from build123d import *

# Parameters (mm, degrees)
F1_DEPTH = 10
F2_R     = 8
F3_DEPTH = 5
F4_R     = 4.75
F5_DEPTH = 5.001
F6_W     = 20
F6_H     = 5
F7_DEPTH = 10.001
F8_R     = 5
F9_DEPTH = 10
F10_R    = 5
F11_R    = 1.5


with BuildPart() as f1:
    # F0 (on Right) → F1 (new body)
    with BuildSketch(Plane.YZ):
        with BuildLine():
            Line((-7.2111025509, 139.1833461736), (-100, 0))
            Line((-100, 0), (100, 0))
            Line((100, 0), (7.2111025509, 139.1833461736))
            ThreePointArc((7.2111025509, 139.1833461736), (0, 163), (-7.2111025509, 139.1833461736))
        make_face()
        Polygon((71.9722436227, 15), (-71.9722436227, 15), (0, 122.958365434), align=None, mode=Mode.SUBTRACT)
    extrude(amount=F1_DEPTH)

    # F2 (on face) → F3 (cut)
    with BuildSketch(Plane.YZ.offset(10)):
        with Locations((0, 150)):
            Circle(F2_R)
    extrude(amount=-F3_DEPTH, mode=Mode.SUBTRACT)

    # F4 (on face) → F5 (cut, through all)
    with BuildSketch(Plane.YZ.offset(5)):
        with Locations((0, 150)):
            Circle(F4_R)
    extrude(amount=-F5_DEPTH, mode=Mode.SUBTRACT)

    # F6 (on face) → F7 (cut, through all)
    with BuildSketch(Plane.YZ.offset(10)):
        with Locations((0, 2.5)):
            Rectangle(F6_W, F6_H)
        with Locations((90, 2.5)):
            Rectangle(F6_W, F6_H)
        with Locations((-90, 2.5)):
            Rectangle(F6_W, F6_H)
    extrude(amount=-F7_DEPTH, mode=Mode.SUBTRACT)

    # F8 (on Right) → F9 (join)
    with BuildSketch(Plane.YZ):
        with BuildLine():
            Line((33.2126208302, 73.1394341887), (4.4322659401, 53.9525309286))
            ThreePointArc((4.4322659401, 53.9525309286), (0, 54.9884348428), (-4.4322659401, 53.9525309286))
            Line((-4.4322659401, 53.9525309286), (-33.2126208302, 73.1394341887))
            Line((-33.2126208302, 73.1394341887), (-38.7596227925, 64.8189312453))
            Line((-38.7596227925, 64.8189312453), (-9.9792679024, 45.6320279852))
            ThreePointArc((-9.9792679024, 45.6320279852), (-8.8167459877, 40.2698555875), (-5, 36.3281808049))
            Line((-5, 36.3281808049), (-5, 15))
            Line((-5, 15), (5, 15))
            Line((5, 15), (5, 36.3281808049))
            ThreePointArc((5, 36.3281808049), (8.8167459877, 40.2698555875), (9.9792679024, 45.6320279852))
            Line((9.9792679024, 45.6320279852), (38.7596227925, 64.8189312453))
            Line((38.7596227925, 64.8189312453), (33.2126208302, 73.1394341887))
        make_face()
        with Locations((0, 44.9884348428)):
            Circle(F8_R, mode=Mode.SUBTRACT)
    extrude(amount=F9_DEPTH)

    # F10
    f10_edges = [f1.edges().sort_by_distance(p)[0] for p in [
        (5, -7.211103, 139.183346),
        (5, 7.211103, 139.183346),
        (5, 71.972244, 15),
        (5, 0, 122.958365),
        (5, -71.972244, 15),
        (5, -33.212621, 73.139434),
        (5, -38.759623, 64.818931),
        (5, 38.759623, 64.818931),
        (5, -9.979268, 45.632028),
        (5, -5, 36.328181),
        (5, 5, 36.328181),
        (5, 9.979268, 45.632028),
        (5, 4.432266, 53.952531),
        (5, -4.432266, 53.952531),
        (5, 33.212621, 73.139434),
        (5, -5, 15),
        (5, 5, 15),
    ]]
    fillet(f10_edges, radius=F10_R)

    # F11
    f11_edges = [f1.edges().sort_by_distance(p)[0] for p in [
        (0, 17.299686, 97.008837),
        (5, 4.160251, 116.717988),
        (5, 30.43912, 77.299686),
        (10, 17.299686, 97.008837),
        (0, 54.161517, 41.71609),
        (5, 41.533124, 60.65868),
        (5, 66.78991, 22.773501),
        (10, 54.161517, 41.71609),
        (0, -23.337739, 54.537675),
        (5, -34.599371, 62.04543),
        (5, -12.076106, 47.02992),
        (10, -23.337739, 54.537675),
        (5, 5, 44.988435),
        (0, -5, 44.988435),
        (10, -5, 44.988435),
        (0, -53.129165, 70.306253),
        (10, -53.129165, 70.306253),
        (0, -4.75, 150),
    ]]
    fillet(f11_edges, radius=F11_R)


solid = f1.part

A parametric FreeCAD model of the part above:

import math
import FreeCAD as App
import Part
import Sketcher

V = App.Vector
Q = App.Units.Quantity


def edges_at(feature, points):
    """Names of the edges that pass closest to the given points."""
    edges = feature.Shape.Edges
    near = lambda p: min(range(len(edges)), key=lambda i: edges[i].distToShape(Part.Vertex(*p))[0])
    return sorted({f"Edge{near(p) + 1}" for p in points})

doc = App.newDocument("Part")
params = doc.addObject("Spreadsheet::Sheet", "Params")
for row, (alias, value) in enumerate([
    ("sketch1_radius", "13 mm"),
    ("sketch1_width", "200 mm"),
    ("pad1_length", "10 mm"),
    ("sketch2_diameter", "16 mm"),
    ("pocket1_length", "5 mm"),
    ("sketch3_diameter", "9.5 mm"),
    ("sketch4_width", "20 mm"),
    ("sketch4_height", "5 mm"),
    ("sketch5_diameter", "10 mm"),
    ("sketch5_radius", "10 mm"),
    ("sketch5_width", "10 mm"),
    ("sketch5_length", "10 mm"),
    ("pad2_length", "10 mm"),
    ("fillet_radius", "5 mm"),
    ("fillet2_radius", "1.5 mm"),
], start=1):
    params.set(f"A{row}", alias)
    params.set(f"B{row}", "=" + value)
    params.setAlias(f"B{row}", alias)

body = doc.addObject("PartDesign::Body", "Body")

# Sketch on YZ plane
sketch1 = body.newObject("Sketcher::SketchObject", "Sketch")
sketch1.AttachmentSupport = (doc.getObject("YZ_Plane"), [""])
sketch1.MapMode = "FlatFace"
sketch1.addGeometry([
    Part.LineSegment(V(-7, 139, 0), V(-100, 0, 0)),  # 0
    Part.LineSegment(V(-100, 0, 0), V(100, 0, 0)),  # 1
    Part.LineSegment(V(100, 0, 0), V(7, 139, 0)),  # 2
    Part.ArcOfCircle(Part.Circle(V(0, 150, 0), V(0, 0, 1), 13), math.radians(-56), math.radians(236)),  # 3
    Part.LineSegment(V(0, 123, 0), V(72, 15, 0)),  # 4
    Part.LineSegment(V(72, 15, 0), V(-72, 15, 0)),  # 5
    Part.LineSegment(V(-72, 15, 0), V(0, 123, 0)),  # 6
], False)
sketch1.addConstraint([
    Sketcher.Constraint("Coincident", 0, 2, 1, 1),
    Sketcher.Constraint("Coincident", 1, 2, 2, 1),
    Sketcher.Constraint("Coincident", 2, 2, 3, 1),
    Sketcher.Constraint("Coincident", 3, 2, 0, 1),
    Sketcher.Constraint("Coincident", 4, 2, 5, 1),
    Sketcher.Constraint("Coincident", 5, 2, 6, 1),
    Sketcher.Constraint("Coincident", 6, 2, 4, 1),
    Sketcher.Constraint("Horizontal", 1),
    Sketcher.Constraint("Horizontal", 5),
    Sketcher.Constraint("Symmetric", 0, 2, 1, 2, -1, 1),
    Sketcher.Constraint("Symmetric", 2, 2, 3, 2, -2),
    Sketcher.Constraint("PointOnObject", 6, 2, -2),
    Sketcher.Constraint("Parallel", 2, 4),
    Sketcher.Constraint("Parallel", 0, 6),
    Sketcher.Constraint("Radius", 3, Q("13 mm")),
    Sketcher.Constraint("DistanceX", 1, 1, 1, 2, Q("200 mm")),
    Sketcher.Constraint("DistanceY", -1, 1, 3, 3, Q("150 mm")),
    Sketcher.Constraint("DistanceY", -1, 1, 4, 2, Q("15 mm")),
    Sketcher.Constraint("DistanceX", 5, 2, 5, 1, Q("143.944487 mm")),
    Sketcher.Constraint("DistanceX", 2, 2, 4, 2, Q("64.761141 mm")),
])
sketch1.setExpression("Constraints[14]", "Params.sketch1_radius")
sketch1.setExpression("Constraints[15]", "Params.sketch1_width")
pad1 = body.newObject("PartDesign::Pad", "Pad")
pad1.Profile = sketch1
pad1.setExpression("Length", "Params.pad1_length")

# Sketch on YZ plane
sketch2 = body.newObject("Sketcher::SketchObject", "Sketch001")
sketch2.AttachmentSupport = (doc.getObject("YZ_Plane"), [""])
sketch2.MapMode = "FlatFace"
sketch2.AttachmentOffset = App.Placement(V(0, 0, 10), App.Rotation())
sketch2.addGeometry(Part.Circle(V(0, 150, 0), V(0, 0, 1), 8), False)
sketch2.addConstraint([
    Sketcher.Constraint("PointOnObject", 0, 3, -2),
    Sketcher.Constraint("Diameter", 0, Q("16 mm")),
    Sketcher.Constraint("DistanceY", -1, 1, 0, 3, Q("150 mm")),
])
sketch2.setExpression("Constraints[1]", "Params.sketch2_diameter")
pocket1 = body.newObject("PartDesign::Pocket", "Pocket")
pocket1.Profile = sketch2
pocket1.setExpression("Length", "Params.pocket1_length")

# Sketch on YZ plane
sketch3 = body.newObject("Sketcher::SketchObject", "Sketch002")
sketch3.AttachmentSupport = (doc.getObject("YZ_Plane"), [""])
sketch3.MapMode = "FlatFace"
sketch3.AttachmentOffset = App.Placement(V(0, 0, 5), App.Rotation())
sketch3.addGeometry(Part.Circle(V(0, 150, 0), V(0, 0, 1), 4.8), False)
sketch3.addConstraint([
    Sketcher.Constraint("PointOnObject", 0, 3, -2),
    Sketcher.Constraint("Diameter", 0, Q("9.5 mm")),
    Sketcher.Constraint("DistanceY", -1, 1, 0, 3, Q("150 mm")),
])
sketch3.setExpression("Constraints[1]", "Params.sketch3_diameter")
pocket2 = body.newObject("PartDesign::Pocket", "Pocket001")
pocket2.Profile = sketch3
pocket2.Type = "ThroughAll"

# Sketch on YZ plane
sketch4 = body.newObject("Sketcher::SketchObject", "Sketch003")
sketch4.AttachmentSupport = (doc.getObject("YZ_Plane"), [""])
sketch4.MapMode = "FlatFace"
sketch4.AttachmentOffset = App.Placement(V(0, 0, 10), App.Rotation())
sketch4.addGeometry([
    Part.LineSegment(V(-10, 5, 0), V(-10, 0, 0)),  # 0
    Part.LineSegment(V(-10, 0, 0), V(10, 0, 0)),  # 1
    Part.LineSegment(V(10, 0, 0), V(10, 5, 0)),  # 2
    Part.LineSegment(V(10, 5, 0), V(-10, 5, 0)),  # 3
    Part.LineSegment(V(80, 5, 0), V(80, 0, 0)),  # 4
    Part.LineSegment(V(80, 0, 0), V(100, 0, 0)),  # 5
    Part.LineSegment(V(100, 0, 0), V(100, 5, 0)),  # 6
    Part.LineSegment(V(100, 5, 0), V(80, 5, 0)),  # 7
    Part.LineSegment(V(-100, 5, 0), V(-100, 0, 0)),  # 8
    Part.LineSegment(V(-100, 0, 0), V(-80, 0, 0)),  # 9
    Part.LineSegment(V(-80, 0, 0), V(-80, 5, 0)),  # 10
    Part.LineSegment(V(-80, 5, 0), V(-100, 5, 0)),  # 11
], False)
sketch4.addConstraint([
    Sketcher.Constraint("Coincident", 0, 2, 1, 1),
    Sketcher.Constraint("Coincident", 1, 2, 2, 1),
    Sketcher.Constraint("Coincident", 2, 2, 3, 1),
    Sketcher.Constraint("Coincident", 3, 2, 0, 1),
    Sketcher.Constraint("Coincident", 4, 2, 5, 1),
    Sketcher.Constraint("Coincident", 5, 2, 6, 1),
    Sketcher.Constraint("Coincident", 6, 2, 7, 1),
    Sketcher.Constraint("Coincident", 7, 2, 4, 1),
    Sketcher.Constraint("Coincident", 8, 2, 9, 1),
    Sketcher.Constraint("Coincident", 9, 2, 10, 1),
    Sketcher.Constraint("Coincident", 10, 2, 11, 1),
    Sketcher.Constraint("Coincident", 11, 2, 8, 1),
    Sketcher.Constraint("Vertical", 0),
    Sketcher.Constraint("Horizontal", 1),
    Sketcher.Constraint("Vertical", 2),
    Sketcher.Constraint("Horizontal", 3),
    Sketcher.Constraint("Vertical", 4),
    Sketcher.Constraint("Horizontal", 5),
    Sketcher.Constraint("Vertical", 6),
    Sketcher.Constraint("Horizontal", 7),
    Sketcher.Constraint("Vertical", 8),
    Sketcher.Constraint("Horizontal", 9),
    Sketcher.Constraint("Vertical", 10),
    Sketcher.Constraint("Horizontal", 11),
    Sketcher.Constraint("Symmetric", 0, 2, 1, 2, -1, 1),
    Sketcher.Constraint("Symmetric", 5, 2, 8, 2, -1, 1),
    Sketcher.Constraint("Symmetric", 4, 2, 9, 2, -2),
    Sketcher.Constraint("Horizontal", 3, 2, 6, 2),
    Sketcher.Constraint("Horizontal", 7, 2, 10, 2),
    Sketcher.Constraint("Equal", 3, 5),
    Sketcher.Constraint("DistanceX", 1, 1, 1, 2, Q("20 mm")),
    Sketcher.Constraint("DistanceY", 0, 2, 0, 1, Q("5 mm")),
    Sketcher.Constraint("DistanceX", -1, 1, 4, 2, Q("80 mm")),
])
sketch4.setExpression("Constraints[30]", "Params.sketch4_width")
sketch4.setExpression("Constraints[31]", "Params.sketch4_height")
pocket3 = body.newObject("PartDesign::Pocket", "Pocket002")
pocket3.Profile = sketch4
pocket3.Type = "ThroughAll"

# Sketch on YZ plane
sketch5 = body.newObject("Sketcher::SketchObject", "Sketch004")
sketch5.AttachmentSupport = (doc.getObject("YZ_Plane"), [""])
sketch5.MapMode = "FlatFace"
sketch5.addGeometry([
    Part.LineSegment(V(33, 73, 0), V(4, 54, 0)),  # 0
    Part.ArcOfCircle(Part.Circle(V(0, 45, 0), V(0, 0, 1), 10), math.radians(64), math.radians(116)),  # 1
    Part.LineSegment(V(-4, 54, 0), V(-33, 73, 0)),  # 2
    Part.LineSegment(V(-33, 73, 0), V(-39, 65, 0)),  # 3
    Part.LineSegment(V(-39, 65, 0), V(-10, 46, 0)),  # 4
    Part.ArcOfCircle(Part.Circle(V(0, 45, 0), V(0, 0, 1), 10), math.radians(176), math.radians(240)),  # 5
    Part.LineSegment(V(-5, 36, 0), V(-5, 15, 0)),  # 6
    Part.LineSegment(V(-5, 15, 0), V(5, 15, 0)),  # 7
    Part.LineSegment(V(5, 15, 0), V(5, 36, 0)),  # 8
    Part.ArcOfCircle(Part.Circle(V(0, 45, 0), V(0, 0, 1), 10), math.radians(-60), math.radians(4)),  # 9
    Part.LineSegment(V(10, 46, 0), V(39, 65, 0)),  # 10
    Part.LineSegment(V(39, 65, 0), V(33, 73, 0)),  # 11
    Part.Circle(V(0, 45, 0), V(0, 0, 1), 5),  # 12
], False)
sketch5.addConstraint([
    Sketcher.Constraint("Coincident", 0, 2, 1, 1),
    Sketcher.Constraint("Coincident", 1, 2, 2, 1),
    Sketcher.Constraint("Coincident", 2, 2, 3, 1),
    Sketcher.Constraint("Coincident", 3, 2, 4, 1),
    Sketcher.Constraint("Coincident", 4, 2, 5, 1),
    Sketcher.Constraint("Coincident", 5, 2, 6, 1),
    Sketcher.Constraint("Coincident", 6, 2, 7, 1),
    Sketcher.Constraint("Coincident", 7, 2, 8, 1),
    Sketcher.Constraint("Coincident", 8, 2, 9, 1),
    Sketcher.Constraint("Coincident", 9, 2, 10, 1),
    Sketcher.Constraint("Coincident", 10, 2, 11, 1),
    Sketcher.Constraint("Coincident", 11, 2, 0, 1),
    Sketcher.Constraint("Vertical", 6),
    Sketcher.Constraint("Horizontal", 7),
    Sketcher.Constraint("Vertical", 8),
    Sketcher.Constraint("Coincident", 5, 3, 1, 3),
    Sketcher.Constraint("Coincident", 9, 3, 1, 3),
    Sketcher.Constraint("Coincident", 12, 3, 1, 3),
    Sketcher.Constraint("Equal", 1, 5),
    Sketcher.Constraint("Equal", 5, 9),
    Sketcher.Constraint("Symmetric", 0, 2, 1, 2, -2),
    Sketcher.Constraint("Symmetric", 3, 2, 10, 2, -2),
    Sketcher.Constraint("Symmetric", 2, 2, 11, 2, -2),
    Sketcher.Constraint("Perpendicular", 2, 3),
    Sketcher.Constraint("Perpendicular", 3, 4),
    Sketcher.Constraint("Parallel", 0, 10),
    Sketcher.Constraint("Horizontal", 5, 2, 8, 2),
    Sketcher.Constraint("Equal", 2, 4),
    Sketcher.Constraint("Diameter", 12, Q("10 mm")),
    Sketcher.Constraint("Radius", 1, Q("10 mm")),
    Sketcher.Constraint("DistanceX", 7, 1, 7, 2, Q("10 mm")),
    Sketcher.Constraint("Distance", 3, Q("10 mm")),
    Sketcher.Constraint("DistanceY", -1, 1, 6, 2, Q("15 mm")),
    Sketcher.Constraint("DistanceY", 1, 3, 2, 2, Q("28.150999 mm")),
    Sketcher.Constraint("DistanceX", 3, 2, 2, 2, Q("5.547002 mm")),
    Sketcher.Constraint("DistanceY", 6, 2, 6, 1, Q("21.328181 mm")),
])
sketch5.setExpression("Constraints[28]", "Params.sketch5_diameter")
sketch5.setExpression("Constraints[29]", "Params.sketch5_radius")
sketch5.setExpression("Constraints[30]", "Params.sketch5_width")
sketch5.setExpression("Constraints[31]", "Params.sketch5_length")
pad2 = body.newObject("PartDesign::Pad", "Pad001")
pad2.Profile = sketch5
pad2.setExpression("Length", "Params.pad2_length")
doc.recompute()

fillet = body.newObject("PartDesign::Fillet", "Fillet")
fillet.Base = (pad2, edges_at(pad2, [
    (5, -7.211, 139.183),
    (5, 7.211, 139.183),
    (5, 71.972, 15),
    (5, 0, 122.958),
    (5, -71.972, 15),
    (5, -33.213, 73.139),
    (5, -38.76, 64.819),
    (5, 38.76, 64.819),
    (5, -9.979, 45.632),
    (5, -5, 36.328),
    (5, 5, 36.328),
    (5, 9.979, 45.632),
    (5, 4.432, 53.953),
    (5, -4.432, 53.953),
    (5, 33.213, 73.139),
    (5, -5, 15),
    (5, 5, 15),
]))
fillet.setExpression("Radius", "Params.fillet_radius")
doc.recompute()

fillet2 = body.newObject("PartDesign::Fillet", "Fillet001")
fillet2.Base = (fillet, edges_at(fillet, [
    (0, 17.3, 97.009),
    (5, 4.16, 116.718),
    (5, 30.439, 77.3),
    (10, 17.3, 97.009),
    (0, 54.162, 41.716),
    (5, 41.533, 60.659),
    (5, 66.79, 22.774),
    (10, 54.162, 41.716),
    (0, -23.338, 54.538),
    (5, -34.599, 62.045),
    (5, -12.076, 47.03),
    (10, -23.338, 54.538),
    (5, 5, 44.988),
    (0, -5, 44.988),
    (10, -5, 44.988),
    (0, -53.129, 70.306),
    (10, -53.129, 70.306),
    (0, -4.75, 150),
]))
fillet2.setExpression("Radius", "Params.fillet2_radius")

doc.recompute()
